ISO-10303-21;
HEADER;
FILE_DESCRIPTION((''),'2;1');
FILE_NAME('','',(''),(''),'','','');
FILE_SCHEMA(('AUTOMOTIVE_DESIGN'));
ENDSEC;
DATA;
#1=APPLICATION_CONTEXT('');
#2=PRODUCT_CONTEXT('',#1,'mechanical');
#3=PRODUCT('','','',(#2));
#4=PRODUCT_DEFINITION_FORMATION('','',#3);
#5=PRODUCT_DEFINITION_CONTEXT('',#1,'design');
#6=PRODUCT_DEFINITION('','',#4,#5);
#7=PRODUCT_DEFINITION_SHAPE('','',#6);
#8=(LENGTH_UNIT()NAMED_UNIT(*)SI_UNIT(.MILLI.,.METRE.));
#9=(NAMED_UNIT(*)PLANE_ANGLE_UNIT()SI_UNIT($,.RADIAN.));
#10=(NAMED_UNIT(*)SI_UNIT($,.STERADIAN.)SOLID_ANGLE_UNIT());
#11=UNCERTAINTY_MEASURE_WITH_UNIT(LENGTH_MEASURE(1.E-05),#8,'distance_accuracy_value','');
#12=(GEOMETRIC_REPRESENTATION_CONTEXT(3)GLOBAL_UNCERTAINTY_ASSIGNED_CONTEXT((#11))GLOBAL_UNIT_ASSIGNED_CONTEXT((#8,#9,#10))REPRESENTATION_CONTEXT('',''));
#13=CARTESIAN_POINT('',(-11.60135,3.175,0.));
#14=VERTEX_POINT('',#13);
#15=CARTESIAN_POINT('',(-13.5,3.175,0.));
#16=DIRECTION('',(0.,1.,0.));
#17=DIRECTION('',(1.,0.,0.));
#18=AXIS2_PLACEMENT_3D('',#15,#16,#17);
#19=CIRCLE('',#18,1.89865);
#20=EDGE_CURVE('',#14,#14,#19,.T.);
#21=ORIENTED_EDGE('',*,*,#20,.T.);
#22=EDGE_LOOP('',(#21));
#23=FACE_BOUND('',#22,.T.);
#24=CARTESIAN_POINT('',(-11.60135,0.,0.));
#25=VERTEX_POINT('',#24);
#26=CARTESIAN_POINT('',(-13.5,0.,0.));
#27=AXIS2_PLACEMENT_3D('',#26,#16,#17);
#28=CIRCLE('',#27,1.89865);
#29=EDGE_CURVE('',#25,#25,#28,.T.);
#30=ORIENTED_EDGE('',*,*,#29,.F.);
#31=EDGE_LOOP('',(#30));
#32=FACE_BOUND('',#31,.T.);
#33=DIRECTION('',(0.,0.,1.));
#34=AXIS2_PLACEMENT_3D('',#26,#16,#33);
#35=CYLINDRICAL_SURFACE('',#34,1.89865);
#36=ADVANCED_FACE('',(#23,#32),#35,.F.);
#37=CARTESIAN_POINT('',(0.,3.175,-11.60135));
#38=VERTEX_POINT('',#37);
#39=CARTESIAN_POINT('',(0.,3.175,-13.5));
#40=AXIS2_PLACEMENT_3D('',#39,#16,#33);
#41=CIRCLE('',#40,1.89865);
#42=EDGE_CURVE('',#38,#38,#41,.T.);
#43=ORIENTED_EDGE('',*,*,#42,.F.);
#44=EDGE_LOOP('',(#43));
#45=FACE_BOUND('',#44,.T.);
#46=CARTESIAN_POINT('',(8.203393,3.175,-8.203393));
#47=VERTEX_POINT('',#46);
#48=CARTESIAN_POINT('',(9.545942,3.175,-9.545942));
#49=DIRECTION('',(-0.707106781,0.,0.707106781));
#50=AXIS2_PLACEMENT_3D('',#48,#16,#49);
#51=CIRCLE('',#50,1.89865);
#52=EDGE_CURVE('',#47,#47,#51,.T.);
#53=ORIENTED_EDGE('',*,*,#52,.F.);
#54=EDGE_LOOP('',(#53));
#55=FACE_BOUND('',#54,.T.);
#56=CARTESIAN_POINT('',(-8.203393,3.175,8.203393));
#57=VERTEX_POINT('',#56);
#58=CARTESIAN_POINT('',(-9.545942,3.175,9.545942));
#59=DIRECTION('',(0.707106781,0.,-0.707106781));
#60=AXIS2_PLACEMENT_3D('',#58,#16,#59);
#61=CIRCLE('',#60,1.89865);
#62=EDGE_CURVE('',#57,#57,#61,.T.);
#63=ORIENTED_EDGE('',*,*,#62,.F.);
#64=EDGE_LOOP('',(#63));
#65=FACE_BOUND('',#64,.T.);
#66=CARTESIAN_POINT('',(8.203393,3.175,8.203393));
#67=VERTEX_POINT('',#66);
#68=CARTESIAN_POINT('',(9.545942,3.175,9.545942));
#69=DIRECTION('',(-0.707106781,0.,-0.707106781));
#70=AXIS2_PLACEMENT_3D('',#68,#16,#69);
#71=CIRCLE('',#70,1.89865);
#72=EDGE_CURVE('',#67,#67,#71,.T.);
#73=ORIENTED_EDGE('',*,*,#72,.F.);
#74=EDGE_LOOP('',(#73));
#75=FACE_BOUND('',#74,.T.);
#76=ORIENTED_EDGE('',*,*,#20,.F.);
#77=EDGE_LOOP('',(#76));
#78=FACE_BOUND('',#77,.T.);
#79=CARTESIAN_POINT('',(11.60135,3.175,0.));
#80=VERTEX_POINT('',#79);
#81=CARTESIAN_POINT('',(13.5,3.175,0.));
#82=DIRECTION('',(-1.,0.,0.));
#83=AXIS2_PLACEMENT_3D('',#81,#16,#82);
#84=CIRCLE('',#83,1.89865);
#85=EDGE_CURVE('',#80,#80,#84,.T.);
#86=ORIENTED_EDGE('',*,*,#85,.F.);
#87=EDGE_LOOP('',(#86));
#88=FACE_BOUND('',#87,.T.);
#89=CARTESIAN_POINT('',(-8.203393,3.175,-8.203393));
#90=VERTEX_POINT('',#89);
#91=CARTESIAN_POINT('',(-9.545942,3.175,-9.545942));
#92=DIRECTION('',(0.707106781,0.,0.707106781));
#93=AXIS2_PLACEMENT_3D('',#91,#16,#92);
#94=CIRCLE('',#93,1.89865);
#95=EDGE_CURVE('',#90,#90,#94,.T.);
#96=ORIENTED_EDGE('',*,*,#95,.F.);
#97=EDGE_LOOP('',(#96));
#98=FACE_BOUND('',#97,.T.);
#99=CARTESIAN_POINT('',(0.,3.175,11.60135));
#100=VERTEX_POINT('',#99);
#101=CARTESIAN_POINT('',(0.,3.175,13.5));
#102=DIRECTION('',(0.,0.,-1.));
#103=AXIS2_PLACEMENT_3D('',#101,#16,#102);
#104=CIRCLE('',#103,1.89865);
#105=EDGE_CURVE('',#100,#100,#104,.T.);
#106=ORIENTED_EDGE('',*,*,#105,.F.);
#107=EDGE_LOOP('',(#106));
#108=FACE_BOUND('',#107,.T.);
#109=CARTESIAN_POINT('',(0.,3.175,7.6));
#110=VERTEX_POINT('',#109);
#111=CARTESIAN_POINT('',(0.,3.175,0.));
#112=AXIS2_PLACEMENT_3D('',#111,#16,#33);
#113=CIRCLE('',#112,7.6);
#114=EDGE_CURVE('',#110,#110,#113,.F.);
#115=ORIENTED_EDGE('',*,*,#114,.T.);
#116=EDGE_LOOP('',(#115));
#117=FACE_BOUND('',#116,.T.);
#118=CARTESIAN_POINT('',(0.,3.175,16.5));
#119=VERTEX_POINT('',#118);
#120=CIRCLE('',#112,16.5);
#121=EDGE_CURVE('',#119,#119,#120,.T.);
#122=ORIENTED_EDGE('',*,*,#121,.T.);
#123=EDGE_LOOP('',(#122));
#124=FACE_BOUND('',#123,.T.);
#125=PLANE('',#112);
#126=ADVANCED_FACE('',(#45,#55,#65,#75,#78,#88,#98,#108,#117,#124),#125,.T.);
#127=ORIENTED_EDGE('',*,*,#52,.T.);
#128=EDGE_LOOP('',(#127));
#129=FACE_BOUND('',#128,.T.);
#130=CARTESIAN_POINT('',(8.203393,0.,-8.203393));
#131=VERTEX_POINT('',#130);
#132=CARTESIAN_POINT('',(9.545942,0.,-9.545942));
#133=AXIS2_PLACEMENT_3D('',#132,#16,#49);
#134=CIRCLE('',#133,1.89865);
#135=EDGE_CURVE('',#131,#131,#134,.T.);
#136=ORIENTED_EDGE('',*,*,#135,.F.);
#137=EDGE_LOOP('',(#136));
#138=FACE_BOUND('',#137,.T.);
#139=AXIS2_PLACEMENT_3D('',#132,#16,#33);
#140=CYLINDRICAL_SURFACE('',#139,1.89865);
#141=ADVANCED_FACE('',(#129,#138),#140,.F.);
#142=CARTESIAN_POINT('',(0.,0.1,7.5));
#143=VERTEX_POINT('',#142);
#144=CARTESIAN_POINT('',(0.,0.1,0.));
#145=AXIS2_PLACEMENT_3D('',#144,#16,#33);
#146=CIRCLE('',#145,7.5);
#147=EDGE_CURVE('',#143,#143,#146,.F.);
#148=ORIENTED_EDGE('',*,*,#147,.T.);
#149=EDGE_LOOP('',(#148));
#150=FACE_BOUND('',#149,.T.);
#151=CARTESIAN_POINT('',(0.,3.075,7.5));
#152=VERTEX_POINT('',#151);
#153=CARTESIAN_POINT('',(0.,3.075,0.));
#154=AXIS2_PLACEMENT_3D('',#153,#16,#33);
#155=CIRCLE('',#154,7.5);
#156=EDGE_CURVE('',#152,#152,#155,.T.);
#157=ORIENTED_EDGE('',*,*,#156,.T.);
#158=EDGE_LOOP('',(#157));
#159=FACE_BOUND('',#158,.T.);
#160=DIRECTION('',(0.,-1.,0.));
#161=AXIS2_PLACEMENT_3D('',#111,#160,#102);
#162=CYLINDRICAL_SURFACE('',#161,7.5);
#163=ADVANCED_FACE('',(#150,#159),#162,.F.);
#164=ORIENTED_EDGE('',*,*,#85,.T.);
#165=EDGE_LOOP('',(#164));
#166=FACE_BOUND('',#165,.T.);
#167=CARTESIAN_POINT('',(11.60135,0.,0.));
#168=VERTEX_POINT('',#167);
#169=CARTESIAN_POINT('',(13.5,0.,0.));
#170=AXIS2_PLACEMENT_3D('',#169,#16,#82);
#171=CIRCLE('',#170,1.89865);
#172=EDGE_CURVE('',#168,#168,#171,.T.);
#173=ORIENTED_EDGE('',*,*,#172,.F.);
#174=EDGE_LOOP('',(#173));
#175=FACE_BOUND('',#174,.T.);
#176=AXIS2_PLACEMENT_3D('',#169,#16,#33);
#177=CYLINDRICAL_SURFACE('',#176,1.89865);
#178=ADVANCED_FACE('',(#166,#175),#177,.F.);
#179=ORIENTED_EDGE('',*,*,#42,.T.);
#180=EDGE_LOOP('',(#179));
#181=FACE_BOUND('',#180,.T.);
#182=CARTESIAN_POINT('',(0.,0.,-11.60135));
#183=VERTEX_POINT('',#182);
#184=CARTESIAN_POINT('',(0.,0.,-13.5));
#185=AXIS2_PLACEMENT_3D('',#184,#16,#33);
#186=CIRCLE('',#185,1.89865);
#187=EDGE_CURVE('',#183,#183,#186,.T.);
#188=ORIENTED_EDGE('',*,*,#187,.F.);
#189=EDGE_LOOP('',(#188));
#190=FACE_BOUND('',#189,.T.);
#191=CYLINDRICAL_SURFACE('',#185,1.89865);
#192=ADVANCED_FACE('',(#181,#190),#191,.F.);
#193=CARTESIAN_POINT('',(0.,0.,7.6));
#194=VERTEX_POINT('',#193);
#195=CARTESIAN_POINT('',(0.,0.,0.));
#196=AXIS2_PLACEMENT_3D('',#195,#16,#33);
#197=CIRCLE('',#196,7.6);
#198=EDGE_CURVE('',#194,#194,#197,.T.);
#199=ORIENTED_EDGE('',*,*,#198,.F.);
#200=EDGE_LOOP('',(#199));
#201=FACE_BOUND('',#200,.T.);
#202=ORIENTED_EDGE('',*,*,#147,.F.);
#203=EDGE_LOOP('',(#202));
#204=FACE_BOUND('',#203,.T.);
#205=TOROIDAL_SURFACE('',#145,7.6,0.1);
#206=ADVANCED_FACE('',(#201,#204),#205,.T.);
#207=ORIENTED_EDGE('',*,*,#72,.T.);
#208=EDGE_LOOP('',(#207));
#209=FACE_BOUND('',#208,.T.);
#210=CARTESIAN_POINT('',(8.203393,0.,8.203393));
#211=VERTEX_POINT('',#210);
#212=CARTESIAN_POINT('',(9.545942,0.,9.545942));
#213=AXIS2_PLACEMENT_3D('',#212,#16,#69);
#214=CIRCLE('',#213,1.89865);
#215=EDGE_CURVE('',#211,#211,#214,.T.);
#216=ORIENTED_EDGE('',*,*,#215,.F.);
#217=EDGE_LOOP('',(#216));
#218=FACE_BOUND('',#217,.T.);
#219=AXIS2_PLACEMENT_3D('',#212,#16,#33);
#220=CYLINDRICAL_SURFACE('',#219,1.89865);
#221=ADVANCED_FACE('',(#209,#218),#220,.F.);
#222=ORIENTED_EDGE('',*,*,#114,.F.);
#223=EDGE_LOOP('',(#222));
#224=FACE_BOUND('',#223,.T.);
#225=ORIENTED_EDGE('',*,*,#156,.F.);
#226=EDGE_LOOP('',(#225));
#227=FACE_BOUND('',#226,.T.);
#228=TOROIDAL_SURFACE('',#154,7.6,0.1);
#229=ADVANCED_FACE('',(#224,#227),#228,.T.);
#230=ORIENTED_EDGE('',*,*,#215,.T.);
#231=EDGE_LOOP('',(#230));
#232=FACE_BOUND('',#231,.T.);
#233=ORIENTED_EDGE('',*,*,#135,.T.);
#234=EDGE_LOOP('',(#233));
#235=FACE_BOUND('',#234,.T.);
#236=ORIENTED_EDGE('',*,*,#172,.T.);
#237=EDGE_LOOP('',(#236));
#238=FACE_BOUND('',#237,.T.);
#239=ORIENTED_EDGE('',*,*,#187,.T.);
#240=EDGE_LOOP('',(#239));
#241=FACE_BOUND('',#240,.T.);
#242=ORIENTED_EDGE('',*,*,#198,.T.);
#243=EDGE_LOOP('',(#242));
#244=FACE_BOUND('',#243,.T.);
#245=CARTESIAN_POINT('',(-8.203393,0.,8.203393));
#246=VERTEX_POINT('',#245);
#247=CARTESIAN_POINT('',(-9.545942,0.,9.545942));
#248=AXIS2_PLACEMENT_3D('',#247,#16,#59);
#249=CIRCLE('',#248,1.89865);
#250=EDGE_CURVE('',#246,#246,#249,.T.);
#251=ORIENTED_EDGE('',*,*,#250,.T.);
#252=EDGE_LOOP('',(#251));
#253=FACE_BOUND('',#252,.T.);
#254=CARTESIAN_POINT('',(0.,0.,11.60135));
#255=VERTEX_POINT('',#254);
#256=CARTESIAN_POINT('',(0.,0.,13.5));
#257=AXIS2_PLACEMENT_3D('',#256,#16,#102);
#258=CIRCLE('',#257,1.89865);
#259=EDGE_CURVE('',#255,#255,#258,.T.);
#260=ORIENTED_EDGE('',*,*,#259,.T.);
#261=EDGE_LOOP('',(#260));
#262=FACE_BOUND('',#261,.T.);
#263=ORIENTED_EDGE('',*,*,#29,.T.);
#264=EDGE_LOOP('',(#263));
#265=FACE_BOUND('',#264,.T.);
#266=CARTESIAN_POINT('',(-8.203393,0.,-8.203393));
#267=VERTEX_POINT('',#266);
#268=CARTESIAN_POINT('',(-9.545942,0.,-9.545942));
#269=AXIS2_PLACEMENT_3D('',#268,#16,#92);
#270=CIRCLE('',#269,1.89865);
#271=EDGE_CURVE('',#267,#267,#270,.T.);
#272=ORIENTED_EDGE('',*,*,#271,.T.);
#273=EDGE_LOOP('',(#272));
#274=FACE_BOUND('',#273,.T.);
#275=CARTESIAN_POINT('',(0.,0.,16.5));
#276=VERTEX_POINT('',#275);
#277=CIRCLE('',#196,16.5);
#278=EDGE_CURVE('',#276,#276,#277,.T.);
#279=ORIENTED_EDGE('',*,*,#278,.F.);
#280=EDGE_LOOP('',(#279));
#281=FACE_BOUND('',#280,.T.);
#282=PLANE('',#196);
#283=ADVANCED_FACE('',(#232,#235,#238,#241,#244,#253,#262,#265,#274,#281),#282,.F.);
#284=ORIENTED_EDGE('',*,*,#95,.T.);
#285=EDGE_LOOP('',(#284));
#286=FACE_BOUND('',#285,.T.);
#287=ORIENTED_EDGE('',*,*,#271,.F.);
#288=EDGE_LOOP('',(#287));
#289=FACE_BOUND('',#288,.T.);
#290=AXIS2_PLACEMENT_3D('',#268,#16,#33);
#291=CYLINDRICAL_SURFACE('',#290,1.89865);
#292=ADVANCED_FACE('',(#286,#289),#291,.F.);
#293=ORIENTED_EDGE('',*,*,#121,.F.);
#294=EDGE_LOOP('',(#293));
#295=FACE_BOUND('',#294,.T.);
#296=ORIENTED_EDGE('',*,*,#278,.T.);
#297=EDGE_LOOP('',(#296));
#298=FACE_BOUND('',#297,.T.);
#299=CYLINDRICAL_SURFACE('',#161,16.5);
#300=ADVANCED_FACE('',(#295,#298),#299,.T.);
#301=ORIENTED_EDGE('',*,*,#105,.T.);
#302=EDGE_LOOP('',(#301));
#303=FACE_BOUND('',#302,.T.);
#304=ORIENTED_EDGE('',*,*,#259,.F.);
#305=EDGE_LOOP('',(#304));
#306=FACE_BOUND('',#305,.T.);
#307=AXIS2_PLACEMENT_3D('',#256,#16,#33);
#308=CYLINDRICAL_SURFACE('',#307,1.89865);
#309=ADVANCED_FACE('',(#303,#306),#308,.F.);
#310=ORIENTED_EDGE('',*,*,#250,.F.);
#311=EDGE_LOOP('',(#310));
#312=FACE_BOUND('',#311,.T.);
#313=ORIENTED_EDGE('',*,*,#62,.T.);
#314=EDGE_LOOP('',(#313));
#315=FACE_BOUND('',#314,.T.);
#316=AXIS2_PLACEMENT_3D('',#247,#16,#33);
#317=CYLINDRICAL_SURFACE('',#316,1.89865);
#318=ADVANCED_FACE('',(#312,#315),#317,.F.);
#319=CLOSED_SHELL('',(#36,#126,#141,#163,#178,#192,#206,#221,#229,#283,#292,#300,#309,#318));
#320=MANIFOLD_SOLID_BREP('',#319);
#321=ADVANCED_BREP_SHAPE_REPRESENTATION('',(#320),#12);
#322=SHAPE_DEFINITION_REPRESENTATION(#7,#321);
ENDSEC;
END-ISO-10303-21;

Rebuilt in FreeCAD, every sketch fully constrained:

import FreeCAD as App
import Part
import Sketcher

V = App.Vector
Q = App.Units.Quantity


def edges_at(feature, points):
    """Names of the edges that pass closest to the given points."""
    edges = feature.Shape.Edges
    near = lambda p: min(range(len(edges)), key=lambda i: edges[i].distToShape(Part.Vertex(*p))[0])
    return sorted({f"Edge{near(p) + 1}" for p in points})

doc = App.newDocument("Part")
params = doc.addObject("Spreadsheet::Sheet", "Params")
for row, (alias, value) in enumerate([
    ("sketch1_diameter", "33 mm"),
    ("sketch1_diameter2", "15 mm"),
    ("pad1_length", "3.175 mm"),
    ("fillet_radius", "0.1 mm"),
], start=1):
    params.set(f"A{row}", alias)
    params.set(f"B{row}", "=" + value)
    params.setAlias(f"B{row}", alias)

body = doc.addObject("PartDesign::Body", "Body")

sketch1 = body.newObject("Sketcher::SketchObject", "Sketch")
sketch1.AttachmentSupport = (doc.getObject("XZ_Plane"), [""])
sketch1.MapMode = "FlatFace"
sketch1.addGeometry(Part.Circle(V(0, 0, 0), V(0, 0, 1), 16), False)
sketch1.addGeometry(Part.Circle(V(0, 0, 0), V(0, 0, 1), 8), False)
sketch1.addConstraint(Sketcher.Constraint("Coincident", 0, 3, -1, 1))
sketch1.addConstraint(Sketcher.Constraint("Coincident", 1, 3, -1, 1))
sketch1.addConstraint(Sketcher.Constraint("Diameter", 0, Q("33 mm")))
sketch1.addConstraint(Sketcher.Constraint("Diameter", 1, Q("15 mm")))
sketch1.setExpression("Constraints[2]", "Params.sketch1_diameter")
sketch1.setExpression("Constraints[3]", "Params.sketch1_diameter2")
pad1 = body.newObject("PartDesign::Pad", "Pad")
pad1.Profile = sketch1
pad1.setExpression("Length", "Params.pad1_length")
pad1.Reversed = True
doc.recompute()

fillet = body.newObject("PartDesign::Fillet", "Fillet")
fillet.Base = (pad1, edges_at(pad1, [(0, 0, -7.5), (0, 3.175, -7.5)]))
fillet.setExpression("Radius", "Params.fillet_radius")

sketch2 = body.newObject("Sketcher::SketchObject", "Sketch001")
sketch2.AttachmentSupport = (doc.getObject("XZ_Plane"), [""])
sketch2.MapMode = "FlatFace"
sketch2.AttachmentOffset = App.Placement(V(0, 0, -3.175), App.Rotation())
sketch2.addGeometry(Part.Circle(V(0, -13.5, 0), V(0, 0, 1), 1.9), False)
sketch2.addConstraint(Sketcher.Constraint("PointOnObject", 0, 3, -2))
sketch2.addConstraint(Sketcher.Constraint("Diameter", 0, Q("3.7973 mm")))
sketch2.addConstraint(Sketcher.Constraint("DistanceY", 0, 3, -1, 1, Q("13.5 mm")))
pocket1 = body.newObject("PartDesign::Pocket", "Pocket")
pocket1.Profile = sketch2
pocket1.Type = "ThroughAll"
pocket1.Reversed = True
doc.recompute()

polarpattern = body.newObject("PartDesign::PolarPattern", "PolarPattern")
polarpattern.Originals = [pocket1]
polarpattern.Axis = (doc.getObject("Y_Axis"), [""])
polarpattern.Angle = 360
polarpattern.Occurrences = 8
body.Tip = polarpattern

doc.recompute()
